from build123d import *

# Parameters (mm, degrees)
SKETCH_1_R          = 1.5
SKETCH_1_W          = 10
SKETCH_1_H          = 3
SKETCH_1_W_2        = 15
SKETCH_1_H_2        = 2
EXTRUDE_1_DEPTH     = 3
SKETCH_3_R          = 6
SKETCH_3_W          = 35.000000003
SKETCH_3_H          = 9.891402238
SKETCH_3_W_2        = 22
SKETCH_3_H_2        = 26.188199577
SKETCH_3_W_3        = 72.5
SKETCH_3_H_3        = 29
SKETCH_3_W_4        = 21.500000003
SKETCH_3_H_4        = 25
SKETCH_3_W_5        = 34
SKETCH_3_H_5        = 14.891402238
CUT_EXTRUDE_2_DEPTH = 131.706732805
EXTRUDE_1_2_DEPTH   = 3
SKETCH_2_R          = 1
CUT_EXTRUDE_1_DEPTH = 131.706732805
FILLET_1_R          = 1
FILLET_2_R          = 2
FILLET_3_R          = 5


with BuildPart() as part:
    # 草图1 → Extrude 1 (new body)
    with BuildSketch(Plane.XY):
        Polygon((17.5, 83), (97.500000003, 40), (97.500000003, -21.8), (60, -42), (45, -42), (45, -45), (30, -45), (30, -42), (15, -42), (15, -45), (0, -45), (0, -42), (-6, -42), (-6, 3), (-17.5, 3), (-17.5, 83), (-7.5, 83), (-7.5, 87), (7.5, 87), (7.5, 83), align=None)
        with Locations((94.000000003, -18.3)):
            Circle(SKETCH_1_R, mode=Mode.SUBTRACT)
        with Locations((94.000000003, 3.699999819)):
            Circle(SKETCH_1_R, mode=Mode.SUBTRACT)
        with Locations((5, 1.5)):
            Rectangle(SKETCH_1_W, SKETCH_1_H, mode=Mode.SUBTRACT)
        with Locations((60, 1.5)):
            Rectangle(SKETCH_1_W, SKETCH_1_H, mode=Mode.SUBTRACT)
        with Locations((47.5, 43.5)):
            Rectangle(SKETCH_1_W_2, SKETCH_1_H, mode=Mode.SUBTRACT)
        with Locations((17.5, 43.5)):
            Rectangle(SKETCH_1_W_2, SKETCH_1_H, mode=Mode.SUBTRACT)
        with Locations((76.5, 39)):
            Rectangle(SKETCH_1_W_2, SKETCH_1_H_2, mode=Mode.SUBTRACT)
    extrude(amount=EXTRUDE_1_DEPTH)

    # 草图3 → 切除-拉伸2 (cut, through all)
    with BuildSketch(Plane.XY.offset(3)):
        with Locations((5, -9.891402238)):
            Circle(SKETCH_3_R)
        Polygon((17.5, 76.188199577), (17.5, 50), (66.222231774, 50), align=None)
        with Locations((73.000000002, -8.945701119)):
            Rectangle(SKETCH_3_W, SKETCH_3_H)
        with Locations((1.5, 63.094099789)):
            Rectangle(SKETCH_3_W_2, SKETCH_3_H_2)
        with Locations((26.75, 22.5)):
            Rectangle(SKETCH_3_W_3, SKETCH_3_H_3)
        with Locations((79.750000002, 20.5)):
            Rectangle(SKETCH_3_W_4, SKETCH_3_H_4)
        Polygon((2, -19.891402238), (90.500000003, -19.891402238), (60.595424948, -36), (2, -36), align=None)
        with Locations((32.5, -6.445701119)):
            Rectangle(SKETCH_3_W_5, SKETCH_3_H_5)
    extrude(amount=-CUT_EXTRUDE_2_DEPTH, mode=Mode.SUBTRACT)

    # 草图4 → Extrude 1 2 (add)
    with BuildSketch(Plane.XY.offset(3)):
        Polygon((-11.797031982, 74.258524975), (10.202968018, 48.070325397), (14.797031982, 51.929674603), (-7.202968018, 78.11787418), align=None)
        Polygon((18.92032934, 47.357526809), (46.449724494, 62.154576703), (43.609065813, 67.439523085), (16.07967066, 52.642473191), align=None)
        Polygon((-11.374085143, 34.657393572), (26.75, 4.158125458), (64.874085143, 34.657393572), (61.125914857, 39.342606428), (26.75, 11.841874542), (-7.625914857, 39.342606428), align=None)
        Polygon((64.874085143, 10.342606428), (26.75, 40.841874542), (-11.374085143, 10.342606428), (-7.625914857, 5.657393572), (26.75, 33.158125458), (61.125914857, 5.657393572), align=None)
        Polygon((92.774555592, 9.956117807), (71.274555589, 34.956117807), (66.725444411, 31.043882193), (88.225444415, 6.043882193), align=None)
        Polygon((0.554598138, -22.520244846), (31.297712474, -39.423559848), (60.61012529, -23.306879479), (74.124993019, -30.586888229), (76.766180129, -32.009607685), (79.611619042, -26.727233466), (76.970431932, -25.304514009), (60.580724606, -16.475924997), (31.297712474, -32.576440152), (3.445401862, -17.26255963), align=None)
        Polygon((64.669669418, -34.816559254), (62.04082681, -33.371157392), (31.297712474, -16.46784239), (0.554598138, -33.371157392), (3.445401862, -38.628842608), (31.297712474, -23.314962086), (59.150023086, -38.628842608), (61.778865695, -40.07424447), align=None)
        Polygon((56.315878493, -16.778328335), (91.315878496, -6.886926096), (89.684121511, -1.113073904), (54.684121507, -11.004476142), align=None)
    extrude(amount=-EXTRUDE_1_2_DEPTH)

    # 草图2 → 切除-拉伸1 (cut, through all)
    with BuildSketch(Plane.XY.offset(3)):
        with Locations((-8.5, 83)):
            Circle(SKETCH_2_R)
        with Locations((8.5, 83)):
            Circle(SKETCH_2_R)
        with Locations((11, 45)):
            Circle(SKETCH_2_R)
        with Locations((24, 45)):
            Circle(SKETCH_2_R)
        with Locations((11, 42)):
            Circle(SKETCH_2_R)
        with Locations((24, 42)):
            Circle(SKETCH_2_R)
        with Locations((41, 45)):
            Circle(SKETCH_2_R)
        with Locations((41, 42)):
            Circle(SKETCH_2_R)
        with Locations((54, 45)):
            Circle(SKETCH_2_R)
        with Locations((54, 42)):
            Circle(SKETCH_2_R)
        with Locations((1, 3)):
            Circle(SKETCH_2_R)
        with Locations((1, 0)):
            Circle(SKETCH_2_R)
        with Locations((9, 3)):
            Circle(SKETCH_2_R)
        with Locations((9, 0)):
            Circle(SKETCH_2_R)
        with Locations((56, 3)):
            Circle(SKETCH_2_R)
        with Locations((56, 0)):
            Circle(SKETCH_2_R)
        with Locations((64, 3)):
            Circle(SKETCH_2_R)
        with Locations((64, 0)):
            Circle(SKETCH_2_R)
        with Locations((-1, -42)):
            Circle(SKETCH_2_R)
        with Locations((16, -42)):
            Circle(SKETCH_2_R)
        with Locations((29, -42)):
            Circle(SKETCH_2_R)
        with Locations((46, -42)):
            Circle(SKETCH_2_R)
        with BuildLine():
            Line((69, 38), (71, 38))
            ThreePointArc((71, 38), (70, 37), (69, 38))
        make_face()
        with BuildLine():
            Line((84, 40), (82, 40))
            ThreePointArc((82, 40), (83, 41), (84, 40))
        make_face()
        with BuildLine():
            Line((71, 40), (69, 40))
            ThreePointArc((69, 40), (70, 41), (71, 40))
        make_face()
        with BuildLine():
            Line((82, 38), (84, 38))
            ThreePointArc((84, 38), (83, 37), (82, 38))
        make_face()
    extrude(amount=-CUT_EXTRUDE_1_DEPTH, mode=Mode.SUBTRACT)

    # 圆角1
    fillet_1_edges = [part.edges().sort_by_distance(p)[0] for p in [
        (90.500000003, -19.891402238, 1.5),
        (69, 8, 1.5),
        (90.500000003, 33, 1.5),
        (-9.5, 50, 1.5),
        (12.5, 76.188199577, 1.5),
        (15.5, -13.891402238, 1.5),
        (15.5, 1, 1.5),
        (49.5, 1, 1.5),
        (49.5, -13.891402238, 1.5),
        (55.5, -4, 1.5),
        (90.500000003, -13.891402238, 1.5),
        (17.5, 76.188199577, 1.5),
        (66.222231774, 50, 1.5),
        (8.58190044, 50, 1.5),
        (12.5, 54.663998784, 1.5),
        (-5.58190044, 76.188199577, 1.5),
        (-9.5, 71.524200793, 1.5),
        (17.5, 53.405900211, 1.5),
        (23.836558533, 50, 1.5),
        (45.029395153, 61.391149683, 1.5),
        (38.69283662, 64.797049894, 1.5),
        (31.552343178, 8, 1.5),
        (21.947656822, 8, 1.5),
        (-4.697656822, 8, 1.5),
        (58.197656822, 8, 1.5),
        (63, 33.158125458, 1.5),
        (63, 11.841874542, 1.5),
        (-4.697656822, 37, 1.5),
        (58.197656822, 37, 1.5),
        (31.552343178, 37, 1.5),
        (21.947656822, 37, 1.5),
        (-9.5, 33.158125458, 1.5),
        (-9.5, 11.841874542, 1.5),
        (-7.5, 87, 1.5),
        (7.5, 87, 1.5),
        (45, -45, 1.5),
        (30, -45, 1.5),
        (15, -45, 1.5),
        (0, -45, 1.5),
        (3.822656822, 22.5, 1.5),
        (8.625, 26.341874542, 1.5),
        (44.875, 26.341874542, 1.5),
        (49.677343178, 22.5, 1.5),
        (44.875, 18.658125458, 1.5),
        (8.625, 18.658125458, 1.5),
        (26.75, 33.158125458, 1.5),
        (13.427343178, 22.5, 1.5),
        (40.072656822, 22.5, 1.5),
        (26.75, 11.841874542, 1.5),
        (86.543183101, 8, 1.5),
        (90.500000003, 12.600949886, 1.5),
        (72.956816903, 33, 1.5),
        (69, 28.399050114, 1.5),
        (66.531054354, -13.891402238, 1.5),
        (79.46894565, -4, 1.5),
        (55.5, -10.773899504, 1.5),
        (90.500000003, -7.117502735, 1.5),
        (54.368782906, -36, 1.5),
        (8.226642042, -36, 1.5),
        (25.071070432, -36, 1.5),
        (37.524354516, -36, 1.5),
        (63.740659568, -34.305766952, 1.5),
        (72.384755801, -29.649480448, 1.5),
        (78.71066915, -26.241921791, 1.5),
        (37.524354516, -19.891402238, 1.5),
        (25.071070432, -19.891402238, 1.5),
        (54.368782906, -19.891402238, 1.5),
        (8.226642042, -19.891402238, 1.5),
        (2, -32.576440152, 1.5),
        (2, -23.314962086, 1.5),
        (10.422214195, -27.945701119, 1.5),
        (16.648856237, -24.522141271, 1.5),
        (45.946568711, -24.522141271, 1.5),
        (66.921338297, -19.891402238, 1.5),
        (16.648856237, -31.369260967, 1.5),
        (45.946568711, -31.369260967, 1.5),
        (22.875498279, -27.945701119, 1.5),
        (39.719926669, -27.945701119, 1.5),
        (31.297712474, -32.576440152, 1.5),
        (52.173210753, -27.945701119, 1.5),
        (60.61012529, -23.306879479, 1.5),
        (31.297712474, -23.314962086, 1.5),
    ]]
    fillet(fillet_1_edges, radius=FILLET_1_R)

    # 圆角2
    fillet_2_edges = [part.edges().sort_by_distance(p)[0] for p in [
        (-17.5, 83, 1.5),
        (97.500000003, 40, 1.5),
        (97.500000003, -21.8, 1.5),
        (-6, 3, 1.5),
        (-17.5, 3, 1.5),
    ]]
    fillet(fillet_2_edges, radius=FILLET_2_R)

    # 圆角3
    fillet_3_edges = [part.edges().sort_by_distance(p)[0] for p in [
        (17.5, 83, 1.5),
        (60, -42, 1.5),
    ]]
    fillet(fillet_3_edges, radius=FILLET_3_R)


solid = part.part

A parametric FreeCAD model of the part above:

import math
import FreeCAD as App
import Part
import Sketcher


def edges_at(feature, points):
    """Names of the edges that pass closest to the given points."""
    edges = feature.Shape.Edges
    near = lambda p: min(range(len(edges)), key=lambda i: edges[i].distToShape(Part.Vertex(*p))[0])
    return sorted({f"Edge{near(p) + 1}" for p in points})


def add_polygon(sketch, points):
    """Adds a closed chain of lines whose ends are joined by coincident constraints."""
    first, n = sketch.GeometryCount, len(points)
    for a, b in zip(points, points[1:] + points[:1]):
        sketch.addGeometry(Part.LineSegment(App.Vector(*a, 0), App.Vector(*b, 0)), False)
    for i in range(n):
        sketch.addConstraint(Sketcher.Constraint("Coincident", first + i, 2, first + (i + 1) % n, 1))

doc = App.newDocument("Part")
body = doc.addObject("PartDesign::Body", "Body")

# Sketch on XY plane
sketch1 = doc.addObject("Sketcher::SketchObject", "Sketch")
body.addObject(sketch1)
sketch1.AttachmentSupport = (doc.XY_Plane, [""])
sketch1.MapMode = "FlatFace"
add_polygon(sketch1, [(97.5, 40), (17.5, 83), (7.5, 83), (7.5, 87), (-7.5, 87), (-7.5, 83), (-17.5, 83), (-17.5, 3), (-6, 3), (-6, -42), (0, -42), (0, -45), (15, -45), (15, -42), (30, -42), (30, -45), (45, -45), (45, -42), (60, -42), (97.5, -21.8)])  # lines 0-19
sketch1.addGeometry(Part.Circle(App.Vector(94, -18.3, 0), App.Vector(0, 0, 1), 1.5), False)  # 20
sketch1.addGeometry(Part.Circle(App.Vector(94, 3.7, 0), App.Vector(0, 0, 1), 1.5), False)  # 21
add_polygon(sketch1, [(55, 0), (55, 3), (65, 3), (65, 0)])  # lines 22-25
add_polygon(sketch1, [(0, 0), (0, 3), (10, 3), (10, 0)])  # lines 26-29
add_polygon(sketch1, [(69, 38), (69, 40), (84, 40), (84, 38)])  # lines 30-33
add_polygon(sketch1, [(40, 42), (40, 45), (55, 45), (55, 42)])  # lines 34-37
add_polygon(sketch1, [(10, 42), (10, 45), (25, 45), (25, 42)])  # lines 38-41
sketch1.addConstraint([
    Sketcher.Constraint("Horizontal", 1),
    Sketcher.Constraint("Vertical", 2),
    Sketcher.Constraint("Horizontal", 3),
    Sketcher.Constraint("Vertical", 4),
    Sketcher.Constraint("Horizontal", 5),
    Sketcher.Constraint("Vertical", 6),
    Sketcher.Constraint("Horizontal", 7),
    Sketcher.Constraint("Vertical", 8),
    Sketcher.Constraint("Horizontal", 9),
    Sketcher.Constraint("Vertical", 10),
    Sketcher.Constraint("Horizontal", 11),
    Sketcher.Constraint("Vertical", 12),
    Sketcher.Constraint("Horizontal", 13),
    Sketcher.Constraint("Vertical", 14),
    Sketcher.Constraint("Horizontal", 15),
    Sketcher.Constraint("Vertical", 16),
    Sketcher.Constraint("Horizontal", 17),
    Sketcher.Constraint("Vertical", 19),
    Sketcher.Constraint("Vertical", 22),
    Sketcher.Constraint("Horizontal", 23),
    Sketcher.Constraint("Vertical", 24),
    Sketcher.Constraint("Horizontal", 25),
    Sketcher.Constraint("Vertical", 26),
    Sketcher.Constraint("Horizontal", 27),
    Sketcher.Constraint("Vertical", 28),
    Sketcher.Constraint("Horizontal", 29),
    Sketcher.Constraint("Vertical", 30),
    Sketcher.Constraint("Horizontal", 31),
    Sketcher.Constraint("Vertical", 32),
    Sketcher.Constraint("Horizontal", 33),
    Sketcher.Constraint("Vertical", 34),
    Sketcher.Constraint("Horizontal", 35),
    Sketcher.Constraint("Vertical", 36),
    Sketcher.Constraint("Horizontal", 37),
    Sketcher.Constraint("Vertical", 38),
    Sketcher.Constraint("Horizontal", 39),
    Sketcher.Constraint("Vertical", 40),
    Sketcher.Constraint("Horizontal", 41),
    Sketcher.Constraint("Coincident", 29, 2, -1, 1),
    Sketcher.Constraint("Equal", 20, 21),
    Sketcher.Constraint("Symmetric", 1, 2, 4, 2, -2),
    Sketcher.Constraint("PointOnObject", 9, 2, -2),
    Sketcher.Constraint("PointOnObject", 24, 2, -1),
    Sketcher.Constraint("Horizontal", 9, 2, 12, 2),
    Sketcher.Constraint("Horizontal", 11, 2, 14, 2),
    Sketcher.Constraint("Horizontal", 13, 2, 16, 2),
    Sketcher.Constraint("Horizontal", 7, 2, 22, 2),
    Sketcher.Constraint("Horizontal", 23, 2, 26, 2),
    Sketcher.Constraint("Horizontal", 19, 2, 30, 2),
    Sketcher.Constraint("Horizontal", 35, 2, 38, 2),
    Sketcher.Constraint("Horizontal", 37, 2, 40, 2),
    Sketcher.Constraint("Vertical", 20, 3, 21, 3),
    Sketcher.Constraint("Vertical", 25, 2, 35, 2),
    Sketcher.Constraint("Vertical", 28, 2, 38, 2),
    Sketcher.Constraint("Equal", 1, 5),
    Sketcher.Constraint("Equal", 3, 11),
    Sketcher.Constraint("Equal", 11, 13),
    Sketcher.Constraint("Equal", 13, 15),
    Sketcher.Constraint("Equal", 15, 17),
    Sketcher.Constraint("Equal", 5, 23),
    Sketcher.Constraint("Equal", 25, 27),
    Sketcher.Constraint("Equal", 17, 31),
    Sketcher.Constraint("Equal", 33, 35),
    Sketcher.Constraint("Equal", 37, 39),
    Sketcher.Constraint("Equal", 16, 22),
    Sketcher.Constraint("Equal", 28, 34),
    Sketcher.Constraint("Diameter", 20, 3.0),
    Sketcher.Constraint("DistanceX", 1, 2, 1, 1, 10.0),
    Sketcher.Constraint("DistanceX", 3, 2, 3, 1, 15.0),
    Sketcher.Constraint("DistanceX", 9, 1, 9, 2, 6.0),
    Sketcher.Constraint("DistanceY", 2, 1, 2, 2, 4.0),
    Sketcher.Constraint("DistanceY", 6, 2, 6, 1, 80.0),
    Sketcher.Constraint("DistanceY", 8, 2, 8, 1, 45.0),
    Sketcher.Constraint("DistanceY", 10, 2, 10, 1, 3.0),
    Sketcher.Constraint("DistanceY", 30, 1, 30, 2, 2.0),
    Sketcher.Constraint("DistanceY", 19, 1, 19, 2, 61.8),
    Sketcher.Constraint("DistanceX", -1, 1, 20, 3, 94.0),
    Sketcher.Constraint("DistanceY", -1, 1, 19, 2, 40.0),
    Sketcher.Constraint("DistanceX", -1, 1, 22, 2, 55.0),
    Sketcher.Constraint("DistanceX", -1, 1, 30, 2, 69.0),
    Sketcher.Constraint("DistanceY", -1, 1, 34, 2, 45.0),
    Sketcher.Constraint("DistanceY", 20, 3, 21, 3, 22.0),
    Sketcher.Constraint("DistanceX", 0, 2, 19, 2, 80.0),
    Sketcher.Constraint("DistanceY", 20, 3, -1, 1, 18.3),
])
pad1 = doc.addObject("PartDesign::Pad", "Pad")
body.addObject(pad1)
pad1.Profile = sketch1
pad1.Length = 3

# Sketch on XY plane
sketch2 = doc.addObject("Sketcher::SketchObject", "Sketch001")
body.addObject(sketch2)
sketch2.AttachmentSupport = (doc.XY_Plane, [""])
sketch2.MapMode = "FlatFace"
sketch2.AttachmentOffset = App.Placement(App.Vector(0, 0, 3), App.Rotation())
sketch2.addGeometry(Part.Circle(App.Vector(5, -9.891402, 0), App.Vector(0, 0, 1), 6), False)  # 0
add_polygon(sketch2, [(17.5, 76.1882), (17.5, 50), (66.222232, 50)])  # lines 1-3
add_polygon(sketch2, [(55.5, -4), (55.5, -13.891402), (90.5, -13.891402), (90.5, -4)])  # lines 4-7
add_polygon(sketch2, [(-9.5, 76.1882), (-9.5, 50), (12.5, 50), (12.5, 76.1882)])  # lines 8-11
add_polygon(sketch2, [(-9.5, 37), (-9.5, 8), (63, 8), (63, 37)])  # lines 12-15
add_polygon(sketch2, [(69, 33), (69, 8), (90.5, 8), (90.5, 33)])  # lines 16-19
add_polygon(sketch2, [(90.5, -19.891402), (2, -19.891402), (2, -36), (60.595425, -36)])  # lines 20-23
add_polygon(sketch2, [(15.5, 1), (15.5, -13.891402), (49.5, -13.891402), (49.5, 1)])  # lines 24-27
sketch2.addConstraint([
    Sketcher.Constraint("Vertical", 1),
    Sketcher.Constraint("Horizontal", 2),
    Sketcher.Constraint("Vertical", 4),
    Sketcher.Constraint("Horizontal", 5),
    Sketcher.Constraint("Vertical", 6),
    Sketcher.Constraint("Horizontal", 7),
    Sketcher.Constraint("Vertical", 8),
    Sketcher.Constraint("Horizontal", 9),
    Sketcher.Constraint("Vertical", 10),
    Sketcher.Constraint("Horizontal", 11),
    Sketcher.Constraint("Vertical", 12),
    Sketcher.Constraint("Horizontal", 13),
    Sketcher.Constraint("Vertical", 14),
    Sketcher.Constraint("Horizontal", 15),
    Sketcher.Constraint("Vertical", 16),
    Sketcher.Constraint("Horizontal", 17),
    Sketcher.Constraint("Vertical", 18),
    Sketcher.Constraint("Horizontal", 19),
    Sketcher.Constraint("Horizontal", 20),
    Sketcher.Constraint("Vertical", 21),
    Sketcher.Constraint("Horizontal", 22),
    Sketcher.Constraint("Vertical", 24),
    Sketcher.Constraint("Horizontal", 25),
    Sketcher.Constraint("Vertical", 26),
    Sketcher.Constraint("Horizontal", 27),
    Sketcher.Constraint("Horizontal", 2, 2, 8, 2),
    Sketcher.Constraint("Horizontal", 3, 2, 10, 2),
    Sketcher.Constraint("Horizontal", 13, 2, 16, 2),
    Sketcher.Constraint("Horizontal", 5, 2, 24, 2),
    Sketcher.Constraint("Vertical", 11, 2, 12, 2),
    Sketcher.Constraint("Vertical", 6, 2, 17, 2),
    Sketcher.Constraint("Vertical", 18, 2, 23, 2),
    Sketcher.Constraint("Diameter", 0, 12.0),
    Sketcher.Constraint("DistanceX", 5, 1, 5, 2, 35.0),
    Sketcher.Constraint("DistanceX", 9, 1, 9, 2, 22.0),
    Sketcher.Constraint("DistanceX", 25, 1, 25, 2, 34.0),
    Sketcher.Constraint("DistanceY", 12, 2, 12, 1, 29.0),
    Sketcher.Constraint("DistanceY", 16, 2, 16, 1, 25.0),
    Sketcher.Constraint("DistanceX", 13, 1, 13, 2, 72.5),
    Sketcher.Constraint("DistanceX", 17, 1, 17, 2, 21.5),
    Sketcher.Constraint("DistanceX", 20, 2, 20, 1, 88.5),
    Sketcher.Constraint("DistanceX", -1, 1, 0, 3, 5.0),
    Sketcher.Constraint("DistanceY", -1, 1, 1, 2, 50.0),
    Sketcher.Constraint("DistanceY", 6, 2, -1, 1, 4.0),
    Sketcher.Constraint("DistanceY", -1, 1, 12, 2, 8.0),
    Sketcher.Constraint("DistanceX", -1, 1, 13, 2, 63.0),
    Sketcher.Constraint("DistanceX", -1, 1, 16, 2, 69.0),
    Sketcher.Constraint("DistanceY", 21, 2, -1, 1, 36.0),
    Sketcher.Constraint("DistanceY", -1, 1, 26, 2, 1.0),
    Sketcher.Constraint("DistanceY", 4, 2, 0, 3, 4.0),
    Sketcher.Constraint("DistanceX", 1, 2, 4, 2, 38.0),
    Sketcher.Constraint("DistanceY", 20, 2, 0, 3, 10.0),
    Sketcher.Constraint("DistanceX", 12, 2, 24, 2, 25.0),
    Sketcher.Constraint("DistanceY", 1, 2, 1, 1, 26.1882),
    Sketcher.Constraint("DistanceX", 2, 1, 2, 2, 48.722232),
    Sketcher.Constraint("DistanceY", 0, 3, 3, 2, 86.079602),
    Sketcher.Constraint("DistanceX", 22, 1, 22, 2, 58.595425),
])
pocket1 = doc.addObject("PartDesign::Pocket", "Pocket")
body.addObject(pocket1)
pocket1.Profile = sketch2
pocket1.Type = "ThroughAll"

# Sketch on XY plane
sketch3 = doc.addObject("Sketcher::SketchObject", "Sketch002")
body.addObject(sketch3)
sketch3.AttachmentSupport = (doc.XY_Plane, [""])
sketch3.MapMode = "FlatFace"
sketch3.AttachmentOffset = App.Placement(App.Vector(0, 0, 3), App.Rotation())
add_polygon(sketch3, [(-11.797032, 74.258525), (10.202968, 48.070325), (14.797032, 51.929675), (-7.202968, 78.117874)])  # lines 0-3
add_polygon(sketch3, [(18.920329, 47.357527), (46.449724, 62.154577), (43.609066, 67.439523), (16.079671, 52.642473)])  # lines 4-7
add_polygon(sketch3, [(-7.625915, 39.342606), (-11.374085, 34.657394), (3.822657, 22.5), (-11.374085, 10.342606), (-7.625915, 5.657394), (8.625, 18.658125), (26.75, 4.158125), (44.875, 18.658125), (61.125915, 5.657394), (64.874085, 10.342606), (49.677343, 22.5), (64.874085, 34.657394), (61.125915, 39.342606), (44.875, 26.341875), (26.75, 40.841875), (8.625, 26.341875)])  # lines 8-23
add_polygon(sketch3, [(26.75, 33.158125), (40.072657, 22.5), (26.75, 11.841875), (13.427343, 22.5)])  # lines 24-27
add_polygon(sketch3, [(92.774556, 9.956118), (71.274556, 34.956118), (66.725444, 31.043882), (88.225444, 6.043882)])  # lines 28-31
add_polygon(sketch3, [(3.445402, -17.26256), (0.554598, -22.520245), (10.422214, -27.945701), (0.554598, -33.371157), (3.445402, -38.628843), (16.648856, -31.369261), (31.297712, -39.42356), (45.946569, -31.369261), (59.150023, -38.628843), (61.778866, -40.074244), (64.669669, -34.816559), (62.040827, -33.371157), (52.173211, -27.945701), (60.610125, -23.306879), (74.124993, -30.586888), (76.76618, -32.009608), (79.611619, -26.727233), (76.970432, -25.304514), (60.580725, -16.475925), (45.946569, -24.522141), (31.297712, -16.467842), (16.648856, -24.522141)])  # lines 32-53
add_polygon(sketch3, [(31.297712, -23.314962), (39.719927, -27.945701), (31.297712, -32.57644), (22.875498, -27.945701)])  # lines 54-57
add_polygon(sketch3, [(56.315878, -16.778328), (91.315878, -6.886926), (89.684122, -1.113074), (54.684122, -11.004476)])  # lines 58-61
sketch3.addConstraint([
    Sketcher.Constraint("Perpendicular", 0, 1),
    Sketcher.Constraint("Perpendicular", 1, 2),
    Sketcher.Constraint("Perpendicular", 2, 3),
    Sketcher.Constraint("Perpendicular", 4, 5),
    Sketcher.Constraint("Perpendicular", 5, 6),
    Sketcher.Constraint("Perpendicular", 6, 7),
    Sketcher.Constraint("Perpendicular", 8, 9),
    Sketcher.Constraint("Perpendicular", 10, 11),
    Sketcher.Constraint("Perpendicular", 11, 12),
    Sketcher.Constraint("Parallel", 9, 13),
    Sketcher.Constraint("Parallel", 12, 14),
    Sketcher.Constraint("Parallel", 13, 15),
    Sketcher.Constraint("Perpendicular", 15, 16),
    Sketcher.Constraint("Perpendicular", 16, 17),
    Sketcher.Constraint("Parallel", 14, 18),
    Sketcher.Constraint("Perpendicular", 18, 19),
    Sketcher.Constraint("Perpendicular", 19, 20),
    Sketcher.Constraint("Parallel", 17, 21),
    Sketcher.Constraint("Parallel", 20, 22),
    Sketcher.Constraint("Parallel", 21, 23),
    Sketcher.Constraint("Parallel", 23, 24),
    Sketcher.Constraint("Parallel", 22, 25),
    Sketcher.Constraint("Parallel", 24, 26),
    Sketcher.Constraint("Parallel", 25, 27),
    Sketcher.Constraint("Perpendicular", 28, 29),
    Sketcher.Constraint("Perpendicular", 29, 30),
    Sketcher.Constraint("Perpendicular", 30, 31),
    Sketcher.Constraint("Perpendicular", 32, 33),
    Sketcher.Constraint("Perpendicular", 34, 35),
    Sketcher.Constraint("Perpendicular", 35, 36),
    Sketcher.Constraint("Parallel", 33, 37),
    Sketcher.Constraint("Parallel", 36, 38),
    Sketcher.Constraint("Parallel", 37, 39),
    Sketcher.Constraint("Parallel", 39, 40),
    Sketcher.Constraint("Perpendicular", 40, 41),
    Sketcher.Constraint("Perpendicular", 41, 42),
    Sketcher.Constraint("Parallel", 42, 43),
    Sketcher.Constraint("Parallel", 38, 44),
    Sketcher.Constraint("Parallel", 45, 46),
    Sketcher.Constraint("Perpendicular", 46, 47),
    Sketcher.Constraint("Perpendicular", 47, 48),
    Sketcher.Constraint("Parallel", 48, 49),
    Sketcher.Constraint("Parallel", 44, 50),
    Sketcher.Constraint("Parallel", 43, 51),
    Sketcher.Constraint("Parallel", 50, 52),
    Sketcher.Constraint("Parallel", 51, 53),
    Sketcher.Constraint("Parallel", 53, 54),
    Sketcher.Constraint("Parallel", 52, 55),
    Sketcher.Constraint("Parallel", 54, 56),
    Sketcher.Constraint("Parallel", 55, 57),
    Sketcher.Constraint("Perpendicular", 58, 59),
    Sketcher.Constraint("Perpendicular", 59, 60),
    Sketcher.Constraint("Perpendicular", 60, 61),
    Sketcher.Constraint("Horizontal", 12, 2, 14, 2),
    Sketcher.Constraint("Horizontal", 11, 2, 15, 2),
    Sketcher.Constraint("Horizontal", 10, 2, 16, 2),
    Sketcher.Constraint("Horizontal", 9, 2, 17, 2),
    Sketcher.Constraint("Horizontal", 8, 2, 18, 2),
    Sketcher.Constraint("Horizontal", 20, 2, 22, 2),
    Sketcher.Constraint("Horizontal", 19, 2, 23, 2),
    Sketcher.Constraint("Horizontal", 17, 2, 24, 2),
    Sketcher.Constraint("Horizontal", 24, 2, 26, 2),
    Sketcher.Constraint("Horizontal", 36, 2, 38, 2),
    Sketcher.Constraint("Horizontal", 35, 2, 39, 2),
    Sketcher.Constraint("Horizontal", 34, 2, 42, 2),
    Sketcher.Constraint("Horizontal", 33, 2, 43, 2),
    Sketcher.Constraint("Horizontal", 50, 2, 52, 2),
    Sketcher.Constraint("Horizontal", 43, 2, 54, 2),
    Sketcher.Constraint("Horizontal", 54, 2, 56, 2),
    Sketcher.Constraint("Vertical", 8, 2, 10, 2),
    Sketcher.Constraint("Vertical", 16, 2, 18, 2),
    Sketcher.Constraint("Vertical", 15, 2, 19, 2),
    Sketcher.Constraint("Vertical", 14, 2, 20, 2),
    Sketcher.Constraint("Vertical", 21, 2, 25, 2),
    Sketcher.Constraint("Vertical", 32, 2, 34, 2),
    Sketcher.Constraint("Vertical", 38, 2, 50, 2),
    Sketcher.Constraint("Vertical", 37, 2, 51, 2),
    Sketcher.Constraint("Vertical", 36, 2, 52, 2),
    Sketcher.Constraint("Vertical", 35, 2, 53, 2),
    Sketcher.Constraint("Vertical", 51, 2, 55, 2),
    Sketcher.Constraint("Equal", 3, 5),
    Sketcher.Constraint("Equal", 7, 8),
    Sketcher.Constraint("Equal", 19, 29),
    Sketcher.Constraint("Equal", 31, 32),
    Sketcher.Constraint("Equal", 35, 41),
    Sketcher.Constraint("Equal", 42, 46),
    Sketcher.Constraint("Equal", 41, 47),
    Sketcher.Constraint("Equal", 46, 48),
    Sketcher.Constraint("Equal", 47, 59),
    Sketcher.Constraint("Distance", 1, 6.0),
    Sketcher.Constraint("Distance", 40, 3.0),
    Sketcher.Constraint("DistanceY", -1, 1, 9, 2, 22.5),
    Sketcher.Constraint("DistanceX", -1, 1, 13, 2, 26.75),
    Sketcher.Constraint("DistanceX", -1, 1, 12, 2, 8.625),
    Sketcher.Constraint("Distance", 45, 15.350902),
    Sketcher.Constraint("DistanceX", -1, 1, 32, 2, 0.554598),
    Sketcher.Constraint("DistanceY", 33, 2, -1, 1, 27.945701),
    Sketcher.Constraint("DistanceX", -1, 1, 35, 2, 3.445402),
    Sketcher.Constraint("DistanceX", -1, 1, 56, 2, 22.875498),
    Sketcher.Constraint("Distance", 33, 11.260791),
    Sketcher.Constraint("Distance", 37, 16.717079),
    Sketcher.Constraint("Distance", 54, 9.611318),
    Sketcher.Constraint("DistanceX", -1, 1, 0, 2, 10.202968),
    Sketcher.Constraint("DistanceX", -1, 1, 1, 2, 14.797032),
    Sketcher.Constraint("DistanceX", 2, 2, -1, 1, 7.202968),
    Sketcher.Constraint("DistanceX", -1, 1, 6, 2, 16.079671),
    Sketcher.Constraint("DistanceX", -1, 1, 7, 2, 18.920329),
    Sketcher.Constraint("DistanceY", 44, 2, -1, 1, 23.306879),
    Sketcher.Constraint("DistanceY", 45, 2, -1, 1, 30.586888),
    Sketcher.Constraint("DistanceX", -1, 1, 58, 2, 91.315878),
    Sketcher.Constraint("DistanceX", -1, 1, 59, 2, 89.684122),
    Sketcher.Constraint("DistanceX", -1, 1, 60, 2, 54.684122),
    Sketcher.Constraint("DistanceY", 61, 2, -1, 1, 16.778328),
    Sketcher.Constraint("Distance", 4, 31.254124),
    Sketcher.Constraint("Distance", 9, 19.461325),
    Sketcher.Constraint("Distance", 12, 20.811325),
    Sketcher.Constraint("Distance", 13, 23.211325),
    Sketcher.Constraint("Distance", 24, 17.061325),
    Sketcher.Constraint("Distance", 28, 32.973474),
    Sketcher.Constraint("DistanceY", -1, 1, 0, 2, 48.070325),
    Sketcher.Constraint("DistanceY", -1, 1, 4, 2, 62.154577),
    Sketcher.Constraint("DistanceX", -1, 1, 28, 2, 71.274556),
    Sketcher.Constraint("DistanceY", -1, 1, 28, 2, 34.956118),
    Sketcher.Constraint("DistanceX", -1, 1, 29, 2, 66.725444),
])
pad2 = doc.addObject("PartDesign::Pad", "Pad001")
body.addObject(pad2)
pad2.Profile = sketch3
pad2.Length = 3
pad2.Reversed = True

# Sketch on XY plane
sketch4 = doc.addObject("Sketcher::SketchObject", "Sketch003")
body.addObject(sketch4)
sketch4.AttachmentSupport = (doc.XY_Plane, [""])
sketch4.MapMode = "FlatFace"
sketch4.AttachmentOffset = App.Placement(App.Vector(0, 0, 3), App.Rotation())
sketch4.addGeometry([
    Part.Circle(App.Vector(-8.5, 83, 0), App.Vector(0, 0, 1), 1),  # 0
    Part.Circle(App.Vector(8.5, 83, 0), App.Vector(0, 0, 1), 1),  # 1
    Part.Circle(App.Vector(11, 45, 0), App.Vector(0, 0, 1), 1),  # 2
    Part.Circle(App.Vector(24, 45, 0), App.Vector(0, 0, 1), 1),  # 3
    Part.Circle(App.Vector(11, 42, 0), App.Vector(0, 0, 1), 1),  # 4
    Part.Circle(App.Vector(24, 42, 0), App.Vector(0, 0, 1), 1),  # 5
    Part.Circle(App.Vector(41, 45, 0), App.Vector(0, 0, 1), 1),  # 6
    Part.Circle(App.Vector(41, 42, 0), App.Vector(0, 0, 1), 1),  # 7
    Part.Circle(App.Vector(54, 45, 0), App.Vector(0, 0, 1), 1),  # 8
    Part.Circle(App.Vector(54, 42, 0), App.Vector(0, 0, 1), 1),  # 9
    Part.Circle(App.Vector(1, 3, 0), App.Vector(0, 0, 1), 1),  # 10
    Part.Circle(App.Vector(1, 0, 0), App.Vector(0, 0, 1), 1),  # 11
    Part.Circle(App.Vector(9, 3, 0), App.Vector(0, 0, 1), 1),  # 12
    Part.Circle(App.Vector(9, 0, 0), App.Vector(0, 0, 1), 1),  # 13
    Part.Circle(App.Vector(56, 3, 0), App.Vector(0, 0, 1), 1),  # 14
    Part.Circle(App.Vector(56, 0, 0), App.Vector(0, 0, 1), 1),  # 15
    Part.Circle(App.Vector(64, 3, 0), App.Vector(0, 0, 1), 1),  # 16
    Part.Circle(App.Vector(64, 0, 0), App.Vector(0, 0, 1), 1),  # 17
    Part.Circle(App.Vector(-1, -42, 0), App.Vector(0, 0, 1), 1),  # 18
    Part.Circle(App.Vector(16, -42, 0), App.Vector(0, 0, 1), 1),  # 19
    Part.Circle(App.Vector(29, -42, 0), App.Vector(0, 0, 1), 1),  # 20
    Part.Circle(App.Vector(46, -42, 0), App.Vector(0, 0, 1), 1),  # 21
    Part.LineSegment(App.Vector(71, 38, 0), App.Vector(69, 38, 0)),  # 22
    Part.ArcOfCircle(Part.Circle(App.Vector(70, 38, 0), App.Vector(0, 0, 1), 1), math.radians(180), math.radians(360)),  # 23
    Part.LineSegment(App.Vector(82, 40, 0), App.Vector(84, 40, 0)),  # 24
    Part.ArcOfCircle(Part.Circle(App.Vector(83, 40, 0), App.Vector(0, 0, 1), 1), math.radians(0), math.radians(180)),  # 25
    Part.LineSegment(App.Vector(69, 40, 0), App.Vector(71, 40, 0)),  # 26
    Part.ArcOfCircle(Part.Circle(App.Vector(70, 40, 0), App.Vector(0, 0, 1), 1), math.radians(0), math.radians(180)),  # 27
    Part.LineSegment(App.Vector(84, 38, 0), App.Vector(82, 38, 0)),  # 28
    Part.ArcOfCircle(Part.Circle(App.Vector(83, 38, 0), App.Vector(0, 0, 1), 1), math.radians(180), math.radians(360)),  # 29
], False)
sketch4.addConstraint([
    Sketcher.Constraint("Coincident", 22, 1, 23, 2),
    Sketcher.Constraint("Coincident", 23, 1, 22, 2),
    Sketcher.Constraint("Coincident", 24, 1, 25, 2),
    Sketcher.Constraint("Coincident", 25, 1, 24, 2),
    Sketcher.Constraint("Coincident", 26, 1, 27, 2),
    Sketcher.Constraint("Coincident", 27, 1, 26, 2),
    Sketcher.Constraint("Coincident", 28, 1, 29, 2),
    Sketcher.Constraint("Coincident", 29, 1, 28, 2),
    Sketcher.Constraint("Horizontal", 22),
    Sketcher.Constraint("Horizontal", 24),
    Sketcher.Constraint("Horizontal", 26),
    Sketcher.Constraint("Horizontal", 28),
    Sketcher.Constraint("Equal", 0, 1),
    Sketcher.Constraint("Equal", 1, 2),
    Sketcher.Constraint("Equal", 2, 3),
    Sketcher.Constraint("Equal", 3, 4),
    Sketcher.Constraint("Equal", 4, 5),
    Sketcher.Constraint("Equal", 5, 6),
    Sketcher.Constraint("Equal", 6, 7),
    Sketcher.Constraint("Equal", 7, 8),
    Sketcher.Constraint("Equal", 8, 9),
    Sketcher.Constraint("Equal", 9, 10),
    Sketcher.Constraint("Equal", 10, 11),
    Sketcher.Constraint("Equal", 11, 12),
    Sketcher.Constraint("Equal", 12, 13),
    Sketcher.Constraint("Equal", 13, 14),
    Sketcher.Constraint("Equal", 14, 15),
    Sketcher.Constraint("Equal", 15, 16),
    Sketcher.Constraint("Equal", 16, 17),
    Sketcher.Constraint("Equal", 17, 18),
    Sketcher.Constraint("Equal", 18, 19),
    Sketcher.Constraint("Equal", 19, 20),
    Sketcher.Constraint("Equal", 20, 21),
    Sketcher.Constraint("Equal", 21, 23),
    Sketcher.Constraint("Equal", 23, 25),
    Sketcher.Constraint("Equal", 25, 27),
    Sketcher.Constraint("Equal", 27, 29),
    Sketcher.Constraint("Symmetric", 0, 3, 1, 3, -2),
    Sketcher.Constraint("PointOnObject", 11, 3, -1),
    Sketcher.Constraint("PointOnObject", 13, 3, -1),
    Sketcher.Constraint("PointOnObject", 15, 3, -1),
    Sketcher.Constraint("PointOnObject", 17, 3, -1),
    Sketcher.Constraint("Horizontal", 2, 3, 3, 3),
    Sketcher.Constraint("Horizontal", 4, 3, 5, 3),
    Sketcher.Constraint("Horizontal", 3, 3, 6, 3),
    Sketcher.Constraint("Horizontal", 5, 3, 7, 3),
    Sketcher.Constraint("Horizontal", 6, 3, 8, 3),
    Sketcher.Constraint("Horizontal", 7, 3, 9, 3),
    Sketcher.Constraint("Horizontal", 10, 3, 12, 3),
    Sketcher.Constraint("Horizontal", 12, 3, 14, 3),
    Sketcher.Constraint("Horizontal", 14, 3, 16, 3),
    Sketcher.Constraint("Horizontal", 18, 3, 19, 3),
    Sketcher.Constraint("Horizontal", 19, 3, 20, 3),
    Sketcher.Constraint("Horizontal", 20, 3, 21, 3),
    Sketcher.Constraint("Horizontal", 25, 3, 27, 3),
    Sketcher.Constraint("Horizontal", 23, 3, 29, 3),
    Sketcher.Constraint("Horizontal", 29, 3, 22, 1),
    Sketcher.Constraint("Horizontal", 27, 3, 24, 1),
    Sketcher.Constraint("Horizontal", 25, 1, 26, 1),
    Sketcher.Constraint("Horizontal", 23, 1, 28, 1),
    Sketcher.Constraint("Vertical", 2, 3, 4, 3),
    Sketcher.Constraint("Vertical", 3, 3, 5, 3),
    Sketcher.Constraint("Vertical", 6, 3, 7, 3),
    Sketcher.Constraint("Vertical", 8, 3, 9, 3),
    Sketcher.Constraint("Vertical", 10, 3, 11, 3),
    Sketcher.Constraint("Vertical", 12, 3, 13, 3),
    Sketcher.Constraint("Vertical", 14, 3, 15, 3),
    Sketcher.Constraint("Vertical", 16, 3, 17, 3),
    Sketcher.Constraint("Vertical", 23, 3, 27, 3),
    Sketcher.Constraint("Vertical", 25, 3, 29, 3),
    Sketcher.Constraint("Diameter", 0, 2.0),
    Sketcher.Constraint("DistanceY", -1, 1, 0, 3, 83.0),
    Sketcher.Constraint("DistanceX", -1, 1, 2, 3, 11.0),
    Sketcher.Constraint("DistanceY", -1, 1, 2, 3, 45.0),
    Sketcher.Constraint("DistanceX", -1, 1, 3, 3, 24.0),
    Sketcher.Constraint("DistanceY", -1, 1, 4, 3, 42.0),
    Sketcher.Constraint("DistanceX", -1, 1, 6, 3, 41.0),
    Sketcher.Constraint("DistanceX", -1, 1, 8, 3, 54.0),
    Sketcher.Constraint("DistanceX", -1, 1, 10, 3, 1.0),
    Sketcher.Constraint("DistanceY", -1, 1, 10, 3, 3.0),
    Sketcher.Constraint("DistanceX", -1, 1, 12, 3, 9.0),
    Sketcher.Constraint("DistanceX", -1, 1, 14, 3, 56.0),
    Sketcher.Constraint("DistanceX", -1, 1, 16, 3, 64.0),
    Sketcher.Constraint("DistanceX", 18, 3, -1, 1, 1.0),
    Sketcher.Constraint("DistanceY", 18, 3, -1, 1, 42.0),
    Sketcher.Constraint("DistanceX", -1, 1, 19, 3, 16.0),
    Sketcher.Constraint("DistanceX", -1, 1, 20, 3, 29.0),
    Sketcher.Constraint("DistanceX", -1, 1, 21, 3, 46.0),
    Sketcher.Constraint("DistanceX", -1, 1, 23, 3, 70.0),
    Sketcher.Constraint("DistanceY", -1, 1, 23, 3, 38.0),
    Sketcher.Constraint("DistanceX", -1, 1, 25, 3, 83.0),
    Sketcher.Constraint("DistanceY", -1, 1, 25, 3, 40.0),
    Sketcher.Constraint("DistanceX", 0, 3, 1, 3, 17.0),
])
pocket2 = doc.addObject("PartDesign::Pocket", "Pocket001")
body.addObject(pocket2)
pocket2.Profile = sketch4
pocket2.Type = "ThroughAll"
doc.recompute()

fillet = doc.addObject("PartDesign::Fillet", "Fillet")
body.addObject(fillet)
fillet.Base = (pocket2, edges_at(pocket2, [
    (90.5, -19.891, 1.5),
    (69, 8, 1.5),
    (90.5, 33, 1.5),
    (-9.5, 50, 1.5),
    (12.5, 76.188, 1.5),
    (15.5, -13.891, 1.5),
    (15.5, 1, 1.5),
    (49.5, 1, 1.5),
    (49.5, -13.891, 1.5),
    (55.5, -4, 1.5),
    (90.5, -13.891, 1.5),
    (17.5, 76.188, 1.5),
    (66.222, 50, 1.5),
    (8.582, 50, 1.5),
    (12.5, 54.664, 1.5),
    (-5.582, 76.188, 1.5),
    (-9.5, 71.524, 1.5),
    (17.5, 53.406, 1.5),
    (23.837, 50, 1.5),
    (45.029, 61.391, 1.5),
    (38.693, 64.797, 1.5),
    (31.552, 8, 1.5),
    (21.948, 8, 1.5),
    (-4.698, 8, 1.5),
    (58.198, 8, 1.5),
    (63, 33.158, 1.5),
    (63, 11.842, 1.5),
    (-4.698, 37, 1.5),
    (58.198, 37, 1.5),
    (31.552, 37, 1.5),
    (21.948, 37, 1.5),
    (-9.5, 33.158, 1.5),
    (-9.5, 11.842, 1.5),
    (-7.5, 87, 1.5),
    (7.5, 87, 1.5),
    (45, -45, 1.5),
    (30, -45, 1.5),
    (15, -45, 1.5),
    (0, -45, 1.5),
    (3.823, 22.5, 1.5),
    (8.625, 26.342, 1.5),
    (44.875, 26.342, 1.5),
    (49.677, 22.5, 1.5),
    (44.875, 18.658, 1.5),
    (8.625, 18.658, 1.5),
    (26.75, 33.158, 1.5),
    (13.427, 22.5, 1.5),
    (40.073, 22.5, 1.5),
    (26.75, 11.842, 1.5),
    (86.543, 8, 1.5),
    (90.5, 12.601, 1.5),
    (72.957, 33, 1.5),
    (69, 28.399, 1.5),
    (66.531, -13.891, 1.5),
    (79.469, -4, 1.5),
    (55.5, -10.774, 1.5),
    (90.5, -7.118, 1.5),
    (54.369, -36, 1.5),
    (8.227, -36, 1.5),
    (25.071, -36, 1.5),
    (37.524, -36, 1.5),
    (63.741, -34.306, 1.5),
    (72.385, -29.649, 1.5),
    (78.711, -26.242, 1.5),
    (37.524, -19.891, 1.5),
    (25.071, -19.891, 1.5),
    (54.369, -19.891, 1.5),
    (8.227, -19.891, 1.5),
    (2, -32.576, 1.5),
    (2, -23.315, 1.5),
    (10.422, -27.946, 1.5),
    (16.649, -24.522, 1.5),
    (45.947, -24.522, 1.5),
    (66.921, -19.891, 1.5),
    (16.649, -31.369, 1.5),
    (45.947, -31.369, 1.5),
    (22.875, -27.946, 1.5),
    (39.72, -27.946, 1.5),
    (31.298, -32.576, 1.5),
    (52.173, -27.946, 1.5),
    (60.61, -23.307, 1.5),
    (31.298, -23.315, 1.5),
]))
fillet.Radius = 1
doc.recompute()

fillet2 = doc.addObject("PartDesign::Fillet", "Fillet001")
body.addObject(fillet2)
fillet2.Base = (fillet, edges_at(fillet, [
    (-17.5, 83, 1.5),
    (97.5, 40, 1.5),
    (97.5, -21.8, 1.5),
    (-6, 3, 1.5),
    (-17.5, 3, 1.5),
]))
fillet2.Radius = 2
doc.recompute()

fillet3 = doc.addObject("PartDesign::Fillet", "Fillet002")
body.addObject(fillet3)
fillet3.Base = (fillet2, edges_at(fillet2, [(17.5, 83, 1.5), (60, -42, 1.5)]))
fillet3.Radius = 5

doc.recompute()
